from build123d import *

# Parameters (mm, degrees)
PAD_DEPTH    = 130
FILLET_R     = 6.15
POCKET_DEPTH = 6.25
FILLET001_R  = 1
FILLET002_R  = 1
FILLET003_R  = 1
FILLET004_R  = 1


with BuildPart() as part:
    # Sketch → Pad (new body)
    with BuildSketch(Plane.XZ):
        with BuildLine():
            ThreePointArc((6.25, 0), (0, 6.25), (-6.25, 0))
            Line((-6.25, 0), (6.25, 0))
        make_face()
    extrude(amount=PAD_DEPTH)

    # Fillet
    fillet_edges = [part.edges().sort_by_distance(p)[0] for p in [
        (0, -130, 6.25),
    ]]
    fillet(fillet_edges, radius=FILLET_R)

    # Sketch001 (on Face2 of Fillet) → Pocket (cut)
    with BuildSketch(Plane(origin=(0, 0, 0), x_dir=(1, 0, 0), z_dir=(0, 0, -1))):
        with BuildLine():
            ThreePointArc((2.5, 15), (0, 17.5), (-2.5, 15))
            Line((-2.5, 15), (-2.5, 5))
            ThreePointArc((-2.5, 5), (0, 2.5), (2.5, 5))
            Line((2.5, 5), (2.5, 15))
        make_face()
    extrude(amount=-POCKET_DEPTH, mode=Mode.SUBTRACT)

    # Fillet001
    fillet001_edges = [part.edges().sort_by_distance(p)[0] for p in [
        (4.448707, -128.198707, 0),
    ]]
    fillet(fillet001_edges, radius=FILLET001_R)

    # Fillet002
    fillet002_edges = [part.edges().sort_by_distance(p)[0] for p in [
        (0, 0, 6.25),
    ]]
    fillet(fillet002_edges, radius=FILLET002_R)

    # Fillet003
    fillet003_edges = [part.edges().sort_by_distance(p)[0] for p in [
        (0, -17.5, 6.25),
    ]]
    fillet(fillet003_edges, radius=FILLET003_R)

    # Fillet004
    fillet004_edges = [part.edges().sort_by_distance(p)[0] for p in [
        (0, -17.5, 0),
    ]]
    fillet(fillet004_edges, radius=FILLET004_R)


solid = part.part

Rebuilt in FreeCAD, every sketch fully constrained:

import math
import FreeCAD as App
import Part
import Sketcher

V = App.Vector
Q = App.Units.Quantity


def edges_at(feature, points):
    """Names of the edges that pass closest to the given points."""
    edges = feature.Shape.Edges
    near = lambda p: min(range(len(edges)), key=lambda i: edges[i].distToShape(Part.Vertex(*p))[0])
    return sorted({f"Edge{near(p) + 1}" for p in points})

doc = App.newDocument("Part")
body = doc.addObject("PartDesign::Body", "Body")

# Sketch on XZ plane
sketch1 = body.newObject("Sketcher::SketchObject", "Sketch")
sketch1.AttachmentSupport = (doc.getObject("XZ_Plane"), [""])
sketch1.MapMode = "FlatFace"
sketch1.addGeometry([
    Part.ArcOfCircle(Part.Circle(V(0, 0, 0), V(0, 0, 1), 6.25), math.radians(0), math.radians(180)),
    Part.LineSegment(V(-6.25, 0, 0), V(6.25, 0, 0)),
], False)
sketch1.addConstraint([
    Sketcher.Constraint("Coincident", 0, 1, 1, 2),
    Sketcher.Constraint("Coincident", 1, 1, 0, 2),
    Sketcher.Constraint("Horizontal", 1),
    Sketcher.Constraint("Coincident", 0, 3, -1, 1),
    Sketcher.Constraint("PointOnObject", 0, 1, -1),
    Sketcher.Constraint("Radius", 0, Q("6.25 mm")),
])
pad1 = body.newObject("PartDesign::Pad", "Pad")
pad1.Profile = sketch1
pad1.Length = 130
doc.recompute()

fillet = body.newObject("PartDesign::Fillet", "Fillet")
fillet.Base = (pad1, edges_at(pad1, [(0, -130, 6.25)]))
fillet.Radius = 6.15

# Sketch on XY plane
sketch2 = body.newObject("Sketcher::SketchObject", "Sketch001")
sketch2.AttachmentSupport = (doc.getObject("XY_Plane"), [""])
sketch2.MapMode = "FlatFace"
sketch2.addGeometry([
    Part.ArcOfCircle(Part.Circle(V(0, -15, 0), V(0, 0, 1), 2.5), math.radians(180), math.radians(360)),
    Part.LineSegment(V(-2.5, -15, 0), V(-2.5, -5, 0)),
    Part.ArcOfCircle(Part.Circle(V(0, -5, 0), V(0, 0, 1), 2.5), math.radians(0), math.radians(180)),
    Part.LineSegment(V(2.5, -5, 0), V(2.5, -15, 0)),
], False)
sketch2.addConstraint([
    Sketcher.Constraint("Tangent", 0, 1, 1, 1),
    Sketcher.Constraint("Tangent", 1, 2, 2, 2),
    Sketcher.Constraint("Tangent", 2, 1, 3, 1),
    Sketcher.Constraint("Tangent", 3, 2, 0, 2),
    Sketcher.Constraint("Vertical", 1),
    Sketcher.Constraint("Vertical", 3),
    Sketcher.Constraint("PointOnObject", 0, 3, -2),
    Sketcher.Constraint("Radius", 0, Q("2.5 mm")),
    Sketcher.Constraint("DistanceY", 1, 1, 1, 2, Q("10 mm")),
    Sketcher.Constraint("DistanceY", 0, 3, -1, 1, Q("15 mm")),
])
pocket1 = body.newObject("PartDesign::Pocket", "Pocket")
pocket1.Profile = sketch2
pocket1.Length = 6.25
pocket1.Reversed = True
doc.recompute()

fillet2 = body.newObject("PartDesign::Fillet", "Fillet001")
fillet2.Base = (pocket1, edges_at(pocket1, [(4.449, -128.199, 0)]))
fillet2.Radius = 1
doc.recompute()

fillet3 = body.newObject("PartDesign::Fillet", "Fillet002")
fillet3.Base = (fillet2, edges_at(fillet2, [(0, 0, 6.25)]))
fillet3.Radius = 1
doc.recompute()

fillet4 = body.newObject("PartDesign::Fillet", "Fillet003")
fillet4.Base = (fillet3, edges_at(fillet3, [(0, -17.5, 6.25)]))
fillet4.Radius = 1
doc.recompute()

fillet5 = body.newObject("PartDesign::Fillet", "Fillet004")
fillet5.Base = (fillet4, edges_at(fillet4, [(0, -17.5, 0)]))
fillet5.Radius = 1

doc.recompute()
